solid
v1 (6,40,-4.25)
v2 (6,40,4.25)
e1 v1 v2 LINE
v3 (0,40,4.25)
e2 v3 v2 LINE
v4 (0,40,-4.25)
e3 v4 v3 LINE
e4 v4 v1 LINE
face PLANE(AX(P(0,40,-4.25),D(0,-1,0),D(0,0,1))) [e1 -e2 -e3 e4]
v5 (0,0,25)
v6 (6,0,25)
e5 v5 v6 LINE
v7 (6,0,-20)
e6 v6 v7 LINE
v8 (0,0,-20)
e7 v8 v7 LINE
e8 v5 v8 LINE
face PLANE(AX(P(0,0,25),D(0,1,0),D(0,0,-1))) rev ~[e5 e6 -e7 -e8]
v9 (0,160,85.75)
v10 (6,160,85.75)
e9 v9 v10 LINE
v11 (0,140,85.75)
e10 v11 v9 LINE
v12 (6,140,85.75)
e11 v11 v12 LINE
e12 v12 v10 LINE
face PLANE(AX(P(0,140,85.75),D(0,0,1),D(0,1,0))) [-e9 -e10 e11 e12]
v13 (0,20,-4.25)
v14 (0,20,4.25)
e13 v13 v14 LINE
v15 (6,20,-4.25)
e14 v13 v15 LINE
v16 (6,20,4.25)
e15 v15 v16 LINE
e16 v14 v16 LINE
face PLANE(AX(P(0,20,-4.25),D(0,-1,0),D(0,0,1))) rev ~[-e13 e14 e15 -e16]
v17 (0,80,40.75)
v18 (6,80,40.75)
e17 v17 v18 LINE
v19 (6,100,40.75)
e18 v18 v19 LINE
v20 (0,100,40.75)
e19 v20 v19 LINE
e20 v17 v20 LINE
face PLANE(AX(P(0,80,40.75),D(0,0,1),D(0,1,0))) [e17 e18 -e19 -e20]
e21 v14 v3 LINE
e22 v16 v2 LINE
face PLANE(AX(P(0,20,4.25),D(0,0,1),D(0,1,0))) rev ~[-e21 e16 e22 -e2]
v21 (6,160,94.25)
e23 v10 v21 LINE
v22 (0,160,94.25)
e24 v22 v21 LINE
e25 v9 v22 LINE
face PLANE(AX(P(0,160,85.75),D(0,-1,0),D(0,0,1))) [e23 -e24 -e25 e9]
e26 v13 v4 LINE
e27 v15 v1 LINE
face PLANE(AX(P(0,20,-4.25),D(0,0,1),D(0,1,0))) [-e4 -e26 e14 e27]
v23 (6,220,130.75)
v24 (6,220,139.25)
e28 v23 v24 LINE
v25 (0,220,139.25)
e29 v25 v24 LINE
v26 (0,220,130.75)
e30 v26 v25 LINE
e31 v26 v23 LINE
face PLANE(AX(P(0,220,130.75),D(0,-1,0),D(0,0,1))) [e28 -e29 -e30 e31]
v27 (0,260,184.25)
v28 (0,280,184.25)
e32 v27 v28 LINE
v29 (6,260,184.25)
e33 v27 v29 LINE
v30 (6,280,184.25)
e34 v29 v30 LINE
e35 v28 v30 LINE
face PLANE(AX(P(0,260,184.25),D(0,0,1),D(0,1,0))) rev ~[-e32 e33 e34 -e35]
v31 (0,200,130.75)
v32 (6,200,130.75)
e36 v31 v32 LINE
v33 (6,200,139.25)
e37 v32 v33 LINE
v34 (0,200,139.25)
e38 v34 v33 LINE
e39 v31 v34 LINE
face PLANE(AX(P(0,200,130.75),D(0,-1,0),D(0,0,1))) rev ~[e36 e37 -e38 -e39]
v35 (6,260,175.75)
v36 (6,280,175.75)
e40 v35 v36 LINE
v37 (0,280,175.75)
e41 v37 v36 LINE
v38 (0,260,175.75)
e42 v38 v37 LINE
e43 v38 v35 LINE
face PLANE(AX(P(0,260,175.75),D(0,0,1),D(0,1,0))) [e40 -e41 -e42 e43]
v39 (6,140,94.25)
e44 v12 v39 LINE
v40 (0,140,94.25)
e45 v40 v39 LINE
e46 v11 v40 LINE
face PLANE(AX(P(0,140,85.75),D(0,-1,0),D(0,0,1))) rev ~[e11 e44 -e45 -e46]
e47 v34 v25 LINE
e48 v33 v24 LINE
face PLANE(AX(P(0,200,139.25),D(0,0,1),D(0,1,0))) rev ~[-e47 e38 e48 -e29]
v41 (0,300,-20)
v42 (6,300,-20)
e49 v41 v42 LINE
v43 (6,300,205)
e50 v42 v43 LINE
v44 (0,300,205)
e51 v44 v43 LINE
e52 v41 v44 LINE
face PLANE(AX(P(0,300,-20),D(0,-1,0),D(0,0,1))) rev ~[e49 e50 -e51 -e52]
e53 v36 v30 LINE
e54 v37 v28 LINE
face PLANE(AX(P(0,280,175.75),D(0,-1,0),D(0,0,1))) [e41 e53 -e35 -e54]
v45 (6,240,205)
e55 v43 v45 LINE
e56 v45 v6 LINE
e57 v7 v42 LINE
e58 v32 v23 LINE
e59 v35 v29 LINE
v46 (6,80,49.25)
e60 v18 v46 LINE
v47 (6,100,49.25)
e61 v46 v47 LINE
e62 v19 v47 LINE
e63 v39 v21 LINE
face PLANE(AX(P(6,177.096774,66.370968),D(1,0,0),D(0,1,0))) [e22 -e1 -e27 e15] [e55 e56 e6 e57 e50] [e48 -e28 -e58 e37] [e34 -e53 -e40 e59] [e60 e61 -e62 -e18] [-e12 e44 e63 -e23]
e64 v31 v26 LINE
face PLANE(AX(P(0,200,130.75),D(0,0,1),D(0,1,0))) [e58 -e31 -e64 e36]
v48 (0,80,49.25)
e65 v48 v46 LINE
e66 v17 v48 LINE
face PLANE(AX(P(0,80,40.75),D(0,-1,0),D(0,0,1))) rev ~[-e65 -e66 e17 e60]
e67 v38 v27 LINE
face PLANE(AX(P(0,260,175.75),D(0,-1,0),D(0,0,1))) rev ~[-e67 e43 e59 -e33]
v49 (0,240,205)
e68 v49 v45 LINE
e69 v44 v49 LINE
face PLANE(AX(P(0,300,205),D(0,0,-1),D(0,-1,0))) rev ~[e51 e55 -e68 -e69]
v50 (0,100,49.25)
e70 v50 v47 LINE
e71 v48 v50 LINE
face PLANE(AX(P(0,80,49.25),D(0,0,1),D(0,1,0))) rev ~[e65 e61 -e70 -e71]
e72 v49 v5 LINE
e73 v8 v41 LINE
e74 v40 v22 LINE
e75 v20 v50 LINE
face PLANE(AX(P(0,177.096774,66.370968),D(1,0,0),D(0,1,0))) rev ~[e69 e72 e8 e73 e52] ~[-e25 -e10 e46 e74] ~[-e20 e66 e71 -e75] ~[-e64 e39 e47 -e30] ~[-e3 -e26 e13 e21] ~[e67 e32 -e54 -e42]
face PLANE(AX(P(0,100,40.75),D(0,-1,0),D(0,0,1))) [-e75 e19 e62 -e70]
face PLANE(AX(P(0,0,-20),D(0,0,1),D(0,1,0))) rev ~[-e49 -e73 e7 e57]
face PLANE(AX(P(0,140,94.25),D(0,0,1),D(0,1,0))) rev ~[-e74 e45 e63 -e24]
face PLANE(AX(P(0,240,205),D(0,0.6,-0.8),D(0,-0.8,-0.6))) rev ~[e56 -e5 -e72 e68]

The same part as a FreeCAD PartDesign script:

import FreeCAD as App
import Part
import Sketcher

V = App.Vector
Q = App.Units.Quantity


def add_polygon(sketch, points):
    """Adds a closed chain of lines whose ends are joined by coincident constraints."""
    first, n = sketch.GeometryCount, len(points)
    for a, b in zip(points, points[1:] + points[:1]):
        sketch.addGeometry(Part.LineSegment(App.Vector(*a, 0), App.Vector(*b, 0)), False)
    for i in range(n):
        sketch.addConstraint(Sketcher.Constraint("Coincident", first + i, 2, first + (i + 1) % n, 1))

doc = App.newDocument("Part")
body = doc.addObject("PartDesign::Body", "Body")

# Sketch on YZ plane
sketch1 = body.newObject("Sketcher::SketchObject", "Sketch")
sketch1.AttachmentSupport = (doc.getObject("YZ_Plane"), [""])
sketch1.MapMode = "FlatFace"
add_polygon(sketch1, [(0, 25), (0, -20), (300, -20), (300, 205), (240, 205)])  # lines 0-4
add_polygon(sketch1, [(40, -4), (20, -4), (20, 4), (40, 4)])  # lines 5-8
add_polygon(sketch1, [(100, 41), (80, 41), (80, 49), (100, 49)])  # lines 9-12
add_polygon(sketch1, [(160, 86), (140, 86), (140, 94), (160, 94)])  # lines 13-16
add_polygon(sketch1, [(220, 131), (200, 131), (200, 139), (220, 139)])  # lines 17-20
add_polygon(sketch1, [(280, 176), (260, 176), (260, 184), (280, 184)])  # lines 21-24
sketch1.addConstraint(Sketcher.Constraint("Vertical", 0))
sketch1.addConstraint(Sketcher.Constraint("Horizontal", 1))
sketch1.addConstraint(Sketcher.Constraint("Vertical", 2))
sketch1.addConstraint(Sketcher.Constraint("Horizontal", 3))
sketch1.addConstraint(Sketcher.Constraint("Horizontal", 5))
sketch1.addConstraint(Sketcher.Constraint("Vertical", 6))
sketch1.addConstraint(Sketcher.Constraint("Horizontal", 7))
sketch1.addConstraint(Sketcher.Constraint("Vertical", 8))
sketch1.addConstraint(Sketcher.Constraint("Horizontal", 9))
sketch1.addConstraint(Sketcher.Constraint("Vertical", 10))
sketch1.addConstraint(Sketcher.Constraint("Horizontal", 11))
sketch1.addConstraint(Sketcher.Constraint("Vertical", 12))
sketch1.addConstraint(Sketcher.Constraint("Horizontal", 13))
sketch1.addConstraint(Sketcher.Constraint("Vertical", 14))
sketch1.addConstraint(Sketcher.Constraint("Horizontal", 15))
sketch1.addConstraint(Sketcher.Constraint("Vertical", 16))
sketch1.addConstraint(Sketcher.Constraint("Horizontal", 17))
sketch1.addConstraint(Sketcher.Constraint("Vertical", 18))
sketch1.addConstraint(Sketcher.Constraint("Horizontal", 19))
sketch1.addConstraint(Sketcher.Constraint("Vertical", 20))
sketch1.addConstraint(Sketcher.Constraint("Horizontal", 21))
sketch1.addConstraint(Sketcher.Constraint("Vertical", 22))
sketch1.addConstraint(Sketcher.Constraint("Horizontal", 23))
sketch1.addConstraint(Sketcher.Constraint("Vertical", 24))
sketch1.addConstraint(Sketcher.Constraint("PointOnObject", 0, 2, -2))
sketch1.addConstraint(Sketcher.Constraint("Equal", 7, 9))
sketch1.addConstraint(Sketcher.Constraint("Equal", 11, 13))
sketch1.addConstraint(Sketcher.Constraint("Equal", 15, 17))
sketch1.addConstraint(Sketcher.Constraint("Equal", 19, 21))
sketch1.addConstraint(Sketcher.Constraint("Equal", 8, 10))
sketch1.addConstraint(Sketcher.Constraint("Equal", 12, 14))
sketch1.addConstraint(Sketcher.Constraint("Equal", 16, 18))
sketch1.addConstraint(Sketcher.Constraint("Equal", 20, 22))
sketch1.addConstraint(Sketcher.Constraint("DistanceX", 1, 1, 1, 2, Q("300 mm")))
sketch1.addConstraint(Sketcher.Constraint("DistanceX", 3, 2, 3, 1, Q("60 mm")))
sketch1.addConstraint(Sketcher.Constraint("DistanceX", 5, 2, 5, 1, Q("20 mm")))
sketch1.addConstraint(Sketcher.Constraint("DistanceY", 0, 2, 0, 1, Q("45 mm")))
sketch1.addConstraint(Sketcher.Constraint("DistanceY", 2, 1, 2, 2, Q("225 mm")))
sketch1.addConstraint(Sketcher.Constraint("DistanceY", 6, 1, 6, 2, Q("8.5 mm")))
sketch1.addConstraint(Sketcher.Constraint("DistanceY", 0, 2, -1, 1, Q("20 mm")))
sketch1.addConstraint(Sketcher.Constraint("DistanceX", -1, 1, 5, 2, Q("20 mm")))
sketch1.addConstraint(Sketcher.Constraint("DistanceX", -1, 1, 9, 2, Q("80 mm")))
sketch1.addConstraint(Sketcher.Constraint("DistanceX", -1, 1, 13, 2, Q("140 mm")))
sketch1.addConstraint(Sketcher.Constraint("DistanceX", -1, 1, 17, 2, Q("200 mm")))
sketch1.addConstraint(Sketcher.Constraint("DistanceX", -1, 1, 21, 2, Q("260 mm")))
sketch1.addConstraint(Sketcher.Constraint("DistanceY", 8, 2, 9, 2, Q("45 mm")))
sketch1.addConstraint(Sketcher.Constraint("DistanceY", 12, 2, 13, 2, Q("45 mm")))
sketch1.addConstraint(Sketcher.Constraint("DistanceY", 16, 2, 17, 2, Q("45 mm")))
sketch1.addConstraint(Sketcher.Constraint("DistanceY", 20, 2, 21, 2, Q("45 mm")))
sketch1.addConstraint(Sketcher.Constraint("DistanceY", 5, 2, -1, 1, Q("4.25 mm")))
pad1 = body.newObject("PartDesign::Pad", "Pad")
pad1.Profile = sketch1
pad1.Length = 6

doc.recompute()
